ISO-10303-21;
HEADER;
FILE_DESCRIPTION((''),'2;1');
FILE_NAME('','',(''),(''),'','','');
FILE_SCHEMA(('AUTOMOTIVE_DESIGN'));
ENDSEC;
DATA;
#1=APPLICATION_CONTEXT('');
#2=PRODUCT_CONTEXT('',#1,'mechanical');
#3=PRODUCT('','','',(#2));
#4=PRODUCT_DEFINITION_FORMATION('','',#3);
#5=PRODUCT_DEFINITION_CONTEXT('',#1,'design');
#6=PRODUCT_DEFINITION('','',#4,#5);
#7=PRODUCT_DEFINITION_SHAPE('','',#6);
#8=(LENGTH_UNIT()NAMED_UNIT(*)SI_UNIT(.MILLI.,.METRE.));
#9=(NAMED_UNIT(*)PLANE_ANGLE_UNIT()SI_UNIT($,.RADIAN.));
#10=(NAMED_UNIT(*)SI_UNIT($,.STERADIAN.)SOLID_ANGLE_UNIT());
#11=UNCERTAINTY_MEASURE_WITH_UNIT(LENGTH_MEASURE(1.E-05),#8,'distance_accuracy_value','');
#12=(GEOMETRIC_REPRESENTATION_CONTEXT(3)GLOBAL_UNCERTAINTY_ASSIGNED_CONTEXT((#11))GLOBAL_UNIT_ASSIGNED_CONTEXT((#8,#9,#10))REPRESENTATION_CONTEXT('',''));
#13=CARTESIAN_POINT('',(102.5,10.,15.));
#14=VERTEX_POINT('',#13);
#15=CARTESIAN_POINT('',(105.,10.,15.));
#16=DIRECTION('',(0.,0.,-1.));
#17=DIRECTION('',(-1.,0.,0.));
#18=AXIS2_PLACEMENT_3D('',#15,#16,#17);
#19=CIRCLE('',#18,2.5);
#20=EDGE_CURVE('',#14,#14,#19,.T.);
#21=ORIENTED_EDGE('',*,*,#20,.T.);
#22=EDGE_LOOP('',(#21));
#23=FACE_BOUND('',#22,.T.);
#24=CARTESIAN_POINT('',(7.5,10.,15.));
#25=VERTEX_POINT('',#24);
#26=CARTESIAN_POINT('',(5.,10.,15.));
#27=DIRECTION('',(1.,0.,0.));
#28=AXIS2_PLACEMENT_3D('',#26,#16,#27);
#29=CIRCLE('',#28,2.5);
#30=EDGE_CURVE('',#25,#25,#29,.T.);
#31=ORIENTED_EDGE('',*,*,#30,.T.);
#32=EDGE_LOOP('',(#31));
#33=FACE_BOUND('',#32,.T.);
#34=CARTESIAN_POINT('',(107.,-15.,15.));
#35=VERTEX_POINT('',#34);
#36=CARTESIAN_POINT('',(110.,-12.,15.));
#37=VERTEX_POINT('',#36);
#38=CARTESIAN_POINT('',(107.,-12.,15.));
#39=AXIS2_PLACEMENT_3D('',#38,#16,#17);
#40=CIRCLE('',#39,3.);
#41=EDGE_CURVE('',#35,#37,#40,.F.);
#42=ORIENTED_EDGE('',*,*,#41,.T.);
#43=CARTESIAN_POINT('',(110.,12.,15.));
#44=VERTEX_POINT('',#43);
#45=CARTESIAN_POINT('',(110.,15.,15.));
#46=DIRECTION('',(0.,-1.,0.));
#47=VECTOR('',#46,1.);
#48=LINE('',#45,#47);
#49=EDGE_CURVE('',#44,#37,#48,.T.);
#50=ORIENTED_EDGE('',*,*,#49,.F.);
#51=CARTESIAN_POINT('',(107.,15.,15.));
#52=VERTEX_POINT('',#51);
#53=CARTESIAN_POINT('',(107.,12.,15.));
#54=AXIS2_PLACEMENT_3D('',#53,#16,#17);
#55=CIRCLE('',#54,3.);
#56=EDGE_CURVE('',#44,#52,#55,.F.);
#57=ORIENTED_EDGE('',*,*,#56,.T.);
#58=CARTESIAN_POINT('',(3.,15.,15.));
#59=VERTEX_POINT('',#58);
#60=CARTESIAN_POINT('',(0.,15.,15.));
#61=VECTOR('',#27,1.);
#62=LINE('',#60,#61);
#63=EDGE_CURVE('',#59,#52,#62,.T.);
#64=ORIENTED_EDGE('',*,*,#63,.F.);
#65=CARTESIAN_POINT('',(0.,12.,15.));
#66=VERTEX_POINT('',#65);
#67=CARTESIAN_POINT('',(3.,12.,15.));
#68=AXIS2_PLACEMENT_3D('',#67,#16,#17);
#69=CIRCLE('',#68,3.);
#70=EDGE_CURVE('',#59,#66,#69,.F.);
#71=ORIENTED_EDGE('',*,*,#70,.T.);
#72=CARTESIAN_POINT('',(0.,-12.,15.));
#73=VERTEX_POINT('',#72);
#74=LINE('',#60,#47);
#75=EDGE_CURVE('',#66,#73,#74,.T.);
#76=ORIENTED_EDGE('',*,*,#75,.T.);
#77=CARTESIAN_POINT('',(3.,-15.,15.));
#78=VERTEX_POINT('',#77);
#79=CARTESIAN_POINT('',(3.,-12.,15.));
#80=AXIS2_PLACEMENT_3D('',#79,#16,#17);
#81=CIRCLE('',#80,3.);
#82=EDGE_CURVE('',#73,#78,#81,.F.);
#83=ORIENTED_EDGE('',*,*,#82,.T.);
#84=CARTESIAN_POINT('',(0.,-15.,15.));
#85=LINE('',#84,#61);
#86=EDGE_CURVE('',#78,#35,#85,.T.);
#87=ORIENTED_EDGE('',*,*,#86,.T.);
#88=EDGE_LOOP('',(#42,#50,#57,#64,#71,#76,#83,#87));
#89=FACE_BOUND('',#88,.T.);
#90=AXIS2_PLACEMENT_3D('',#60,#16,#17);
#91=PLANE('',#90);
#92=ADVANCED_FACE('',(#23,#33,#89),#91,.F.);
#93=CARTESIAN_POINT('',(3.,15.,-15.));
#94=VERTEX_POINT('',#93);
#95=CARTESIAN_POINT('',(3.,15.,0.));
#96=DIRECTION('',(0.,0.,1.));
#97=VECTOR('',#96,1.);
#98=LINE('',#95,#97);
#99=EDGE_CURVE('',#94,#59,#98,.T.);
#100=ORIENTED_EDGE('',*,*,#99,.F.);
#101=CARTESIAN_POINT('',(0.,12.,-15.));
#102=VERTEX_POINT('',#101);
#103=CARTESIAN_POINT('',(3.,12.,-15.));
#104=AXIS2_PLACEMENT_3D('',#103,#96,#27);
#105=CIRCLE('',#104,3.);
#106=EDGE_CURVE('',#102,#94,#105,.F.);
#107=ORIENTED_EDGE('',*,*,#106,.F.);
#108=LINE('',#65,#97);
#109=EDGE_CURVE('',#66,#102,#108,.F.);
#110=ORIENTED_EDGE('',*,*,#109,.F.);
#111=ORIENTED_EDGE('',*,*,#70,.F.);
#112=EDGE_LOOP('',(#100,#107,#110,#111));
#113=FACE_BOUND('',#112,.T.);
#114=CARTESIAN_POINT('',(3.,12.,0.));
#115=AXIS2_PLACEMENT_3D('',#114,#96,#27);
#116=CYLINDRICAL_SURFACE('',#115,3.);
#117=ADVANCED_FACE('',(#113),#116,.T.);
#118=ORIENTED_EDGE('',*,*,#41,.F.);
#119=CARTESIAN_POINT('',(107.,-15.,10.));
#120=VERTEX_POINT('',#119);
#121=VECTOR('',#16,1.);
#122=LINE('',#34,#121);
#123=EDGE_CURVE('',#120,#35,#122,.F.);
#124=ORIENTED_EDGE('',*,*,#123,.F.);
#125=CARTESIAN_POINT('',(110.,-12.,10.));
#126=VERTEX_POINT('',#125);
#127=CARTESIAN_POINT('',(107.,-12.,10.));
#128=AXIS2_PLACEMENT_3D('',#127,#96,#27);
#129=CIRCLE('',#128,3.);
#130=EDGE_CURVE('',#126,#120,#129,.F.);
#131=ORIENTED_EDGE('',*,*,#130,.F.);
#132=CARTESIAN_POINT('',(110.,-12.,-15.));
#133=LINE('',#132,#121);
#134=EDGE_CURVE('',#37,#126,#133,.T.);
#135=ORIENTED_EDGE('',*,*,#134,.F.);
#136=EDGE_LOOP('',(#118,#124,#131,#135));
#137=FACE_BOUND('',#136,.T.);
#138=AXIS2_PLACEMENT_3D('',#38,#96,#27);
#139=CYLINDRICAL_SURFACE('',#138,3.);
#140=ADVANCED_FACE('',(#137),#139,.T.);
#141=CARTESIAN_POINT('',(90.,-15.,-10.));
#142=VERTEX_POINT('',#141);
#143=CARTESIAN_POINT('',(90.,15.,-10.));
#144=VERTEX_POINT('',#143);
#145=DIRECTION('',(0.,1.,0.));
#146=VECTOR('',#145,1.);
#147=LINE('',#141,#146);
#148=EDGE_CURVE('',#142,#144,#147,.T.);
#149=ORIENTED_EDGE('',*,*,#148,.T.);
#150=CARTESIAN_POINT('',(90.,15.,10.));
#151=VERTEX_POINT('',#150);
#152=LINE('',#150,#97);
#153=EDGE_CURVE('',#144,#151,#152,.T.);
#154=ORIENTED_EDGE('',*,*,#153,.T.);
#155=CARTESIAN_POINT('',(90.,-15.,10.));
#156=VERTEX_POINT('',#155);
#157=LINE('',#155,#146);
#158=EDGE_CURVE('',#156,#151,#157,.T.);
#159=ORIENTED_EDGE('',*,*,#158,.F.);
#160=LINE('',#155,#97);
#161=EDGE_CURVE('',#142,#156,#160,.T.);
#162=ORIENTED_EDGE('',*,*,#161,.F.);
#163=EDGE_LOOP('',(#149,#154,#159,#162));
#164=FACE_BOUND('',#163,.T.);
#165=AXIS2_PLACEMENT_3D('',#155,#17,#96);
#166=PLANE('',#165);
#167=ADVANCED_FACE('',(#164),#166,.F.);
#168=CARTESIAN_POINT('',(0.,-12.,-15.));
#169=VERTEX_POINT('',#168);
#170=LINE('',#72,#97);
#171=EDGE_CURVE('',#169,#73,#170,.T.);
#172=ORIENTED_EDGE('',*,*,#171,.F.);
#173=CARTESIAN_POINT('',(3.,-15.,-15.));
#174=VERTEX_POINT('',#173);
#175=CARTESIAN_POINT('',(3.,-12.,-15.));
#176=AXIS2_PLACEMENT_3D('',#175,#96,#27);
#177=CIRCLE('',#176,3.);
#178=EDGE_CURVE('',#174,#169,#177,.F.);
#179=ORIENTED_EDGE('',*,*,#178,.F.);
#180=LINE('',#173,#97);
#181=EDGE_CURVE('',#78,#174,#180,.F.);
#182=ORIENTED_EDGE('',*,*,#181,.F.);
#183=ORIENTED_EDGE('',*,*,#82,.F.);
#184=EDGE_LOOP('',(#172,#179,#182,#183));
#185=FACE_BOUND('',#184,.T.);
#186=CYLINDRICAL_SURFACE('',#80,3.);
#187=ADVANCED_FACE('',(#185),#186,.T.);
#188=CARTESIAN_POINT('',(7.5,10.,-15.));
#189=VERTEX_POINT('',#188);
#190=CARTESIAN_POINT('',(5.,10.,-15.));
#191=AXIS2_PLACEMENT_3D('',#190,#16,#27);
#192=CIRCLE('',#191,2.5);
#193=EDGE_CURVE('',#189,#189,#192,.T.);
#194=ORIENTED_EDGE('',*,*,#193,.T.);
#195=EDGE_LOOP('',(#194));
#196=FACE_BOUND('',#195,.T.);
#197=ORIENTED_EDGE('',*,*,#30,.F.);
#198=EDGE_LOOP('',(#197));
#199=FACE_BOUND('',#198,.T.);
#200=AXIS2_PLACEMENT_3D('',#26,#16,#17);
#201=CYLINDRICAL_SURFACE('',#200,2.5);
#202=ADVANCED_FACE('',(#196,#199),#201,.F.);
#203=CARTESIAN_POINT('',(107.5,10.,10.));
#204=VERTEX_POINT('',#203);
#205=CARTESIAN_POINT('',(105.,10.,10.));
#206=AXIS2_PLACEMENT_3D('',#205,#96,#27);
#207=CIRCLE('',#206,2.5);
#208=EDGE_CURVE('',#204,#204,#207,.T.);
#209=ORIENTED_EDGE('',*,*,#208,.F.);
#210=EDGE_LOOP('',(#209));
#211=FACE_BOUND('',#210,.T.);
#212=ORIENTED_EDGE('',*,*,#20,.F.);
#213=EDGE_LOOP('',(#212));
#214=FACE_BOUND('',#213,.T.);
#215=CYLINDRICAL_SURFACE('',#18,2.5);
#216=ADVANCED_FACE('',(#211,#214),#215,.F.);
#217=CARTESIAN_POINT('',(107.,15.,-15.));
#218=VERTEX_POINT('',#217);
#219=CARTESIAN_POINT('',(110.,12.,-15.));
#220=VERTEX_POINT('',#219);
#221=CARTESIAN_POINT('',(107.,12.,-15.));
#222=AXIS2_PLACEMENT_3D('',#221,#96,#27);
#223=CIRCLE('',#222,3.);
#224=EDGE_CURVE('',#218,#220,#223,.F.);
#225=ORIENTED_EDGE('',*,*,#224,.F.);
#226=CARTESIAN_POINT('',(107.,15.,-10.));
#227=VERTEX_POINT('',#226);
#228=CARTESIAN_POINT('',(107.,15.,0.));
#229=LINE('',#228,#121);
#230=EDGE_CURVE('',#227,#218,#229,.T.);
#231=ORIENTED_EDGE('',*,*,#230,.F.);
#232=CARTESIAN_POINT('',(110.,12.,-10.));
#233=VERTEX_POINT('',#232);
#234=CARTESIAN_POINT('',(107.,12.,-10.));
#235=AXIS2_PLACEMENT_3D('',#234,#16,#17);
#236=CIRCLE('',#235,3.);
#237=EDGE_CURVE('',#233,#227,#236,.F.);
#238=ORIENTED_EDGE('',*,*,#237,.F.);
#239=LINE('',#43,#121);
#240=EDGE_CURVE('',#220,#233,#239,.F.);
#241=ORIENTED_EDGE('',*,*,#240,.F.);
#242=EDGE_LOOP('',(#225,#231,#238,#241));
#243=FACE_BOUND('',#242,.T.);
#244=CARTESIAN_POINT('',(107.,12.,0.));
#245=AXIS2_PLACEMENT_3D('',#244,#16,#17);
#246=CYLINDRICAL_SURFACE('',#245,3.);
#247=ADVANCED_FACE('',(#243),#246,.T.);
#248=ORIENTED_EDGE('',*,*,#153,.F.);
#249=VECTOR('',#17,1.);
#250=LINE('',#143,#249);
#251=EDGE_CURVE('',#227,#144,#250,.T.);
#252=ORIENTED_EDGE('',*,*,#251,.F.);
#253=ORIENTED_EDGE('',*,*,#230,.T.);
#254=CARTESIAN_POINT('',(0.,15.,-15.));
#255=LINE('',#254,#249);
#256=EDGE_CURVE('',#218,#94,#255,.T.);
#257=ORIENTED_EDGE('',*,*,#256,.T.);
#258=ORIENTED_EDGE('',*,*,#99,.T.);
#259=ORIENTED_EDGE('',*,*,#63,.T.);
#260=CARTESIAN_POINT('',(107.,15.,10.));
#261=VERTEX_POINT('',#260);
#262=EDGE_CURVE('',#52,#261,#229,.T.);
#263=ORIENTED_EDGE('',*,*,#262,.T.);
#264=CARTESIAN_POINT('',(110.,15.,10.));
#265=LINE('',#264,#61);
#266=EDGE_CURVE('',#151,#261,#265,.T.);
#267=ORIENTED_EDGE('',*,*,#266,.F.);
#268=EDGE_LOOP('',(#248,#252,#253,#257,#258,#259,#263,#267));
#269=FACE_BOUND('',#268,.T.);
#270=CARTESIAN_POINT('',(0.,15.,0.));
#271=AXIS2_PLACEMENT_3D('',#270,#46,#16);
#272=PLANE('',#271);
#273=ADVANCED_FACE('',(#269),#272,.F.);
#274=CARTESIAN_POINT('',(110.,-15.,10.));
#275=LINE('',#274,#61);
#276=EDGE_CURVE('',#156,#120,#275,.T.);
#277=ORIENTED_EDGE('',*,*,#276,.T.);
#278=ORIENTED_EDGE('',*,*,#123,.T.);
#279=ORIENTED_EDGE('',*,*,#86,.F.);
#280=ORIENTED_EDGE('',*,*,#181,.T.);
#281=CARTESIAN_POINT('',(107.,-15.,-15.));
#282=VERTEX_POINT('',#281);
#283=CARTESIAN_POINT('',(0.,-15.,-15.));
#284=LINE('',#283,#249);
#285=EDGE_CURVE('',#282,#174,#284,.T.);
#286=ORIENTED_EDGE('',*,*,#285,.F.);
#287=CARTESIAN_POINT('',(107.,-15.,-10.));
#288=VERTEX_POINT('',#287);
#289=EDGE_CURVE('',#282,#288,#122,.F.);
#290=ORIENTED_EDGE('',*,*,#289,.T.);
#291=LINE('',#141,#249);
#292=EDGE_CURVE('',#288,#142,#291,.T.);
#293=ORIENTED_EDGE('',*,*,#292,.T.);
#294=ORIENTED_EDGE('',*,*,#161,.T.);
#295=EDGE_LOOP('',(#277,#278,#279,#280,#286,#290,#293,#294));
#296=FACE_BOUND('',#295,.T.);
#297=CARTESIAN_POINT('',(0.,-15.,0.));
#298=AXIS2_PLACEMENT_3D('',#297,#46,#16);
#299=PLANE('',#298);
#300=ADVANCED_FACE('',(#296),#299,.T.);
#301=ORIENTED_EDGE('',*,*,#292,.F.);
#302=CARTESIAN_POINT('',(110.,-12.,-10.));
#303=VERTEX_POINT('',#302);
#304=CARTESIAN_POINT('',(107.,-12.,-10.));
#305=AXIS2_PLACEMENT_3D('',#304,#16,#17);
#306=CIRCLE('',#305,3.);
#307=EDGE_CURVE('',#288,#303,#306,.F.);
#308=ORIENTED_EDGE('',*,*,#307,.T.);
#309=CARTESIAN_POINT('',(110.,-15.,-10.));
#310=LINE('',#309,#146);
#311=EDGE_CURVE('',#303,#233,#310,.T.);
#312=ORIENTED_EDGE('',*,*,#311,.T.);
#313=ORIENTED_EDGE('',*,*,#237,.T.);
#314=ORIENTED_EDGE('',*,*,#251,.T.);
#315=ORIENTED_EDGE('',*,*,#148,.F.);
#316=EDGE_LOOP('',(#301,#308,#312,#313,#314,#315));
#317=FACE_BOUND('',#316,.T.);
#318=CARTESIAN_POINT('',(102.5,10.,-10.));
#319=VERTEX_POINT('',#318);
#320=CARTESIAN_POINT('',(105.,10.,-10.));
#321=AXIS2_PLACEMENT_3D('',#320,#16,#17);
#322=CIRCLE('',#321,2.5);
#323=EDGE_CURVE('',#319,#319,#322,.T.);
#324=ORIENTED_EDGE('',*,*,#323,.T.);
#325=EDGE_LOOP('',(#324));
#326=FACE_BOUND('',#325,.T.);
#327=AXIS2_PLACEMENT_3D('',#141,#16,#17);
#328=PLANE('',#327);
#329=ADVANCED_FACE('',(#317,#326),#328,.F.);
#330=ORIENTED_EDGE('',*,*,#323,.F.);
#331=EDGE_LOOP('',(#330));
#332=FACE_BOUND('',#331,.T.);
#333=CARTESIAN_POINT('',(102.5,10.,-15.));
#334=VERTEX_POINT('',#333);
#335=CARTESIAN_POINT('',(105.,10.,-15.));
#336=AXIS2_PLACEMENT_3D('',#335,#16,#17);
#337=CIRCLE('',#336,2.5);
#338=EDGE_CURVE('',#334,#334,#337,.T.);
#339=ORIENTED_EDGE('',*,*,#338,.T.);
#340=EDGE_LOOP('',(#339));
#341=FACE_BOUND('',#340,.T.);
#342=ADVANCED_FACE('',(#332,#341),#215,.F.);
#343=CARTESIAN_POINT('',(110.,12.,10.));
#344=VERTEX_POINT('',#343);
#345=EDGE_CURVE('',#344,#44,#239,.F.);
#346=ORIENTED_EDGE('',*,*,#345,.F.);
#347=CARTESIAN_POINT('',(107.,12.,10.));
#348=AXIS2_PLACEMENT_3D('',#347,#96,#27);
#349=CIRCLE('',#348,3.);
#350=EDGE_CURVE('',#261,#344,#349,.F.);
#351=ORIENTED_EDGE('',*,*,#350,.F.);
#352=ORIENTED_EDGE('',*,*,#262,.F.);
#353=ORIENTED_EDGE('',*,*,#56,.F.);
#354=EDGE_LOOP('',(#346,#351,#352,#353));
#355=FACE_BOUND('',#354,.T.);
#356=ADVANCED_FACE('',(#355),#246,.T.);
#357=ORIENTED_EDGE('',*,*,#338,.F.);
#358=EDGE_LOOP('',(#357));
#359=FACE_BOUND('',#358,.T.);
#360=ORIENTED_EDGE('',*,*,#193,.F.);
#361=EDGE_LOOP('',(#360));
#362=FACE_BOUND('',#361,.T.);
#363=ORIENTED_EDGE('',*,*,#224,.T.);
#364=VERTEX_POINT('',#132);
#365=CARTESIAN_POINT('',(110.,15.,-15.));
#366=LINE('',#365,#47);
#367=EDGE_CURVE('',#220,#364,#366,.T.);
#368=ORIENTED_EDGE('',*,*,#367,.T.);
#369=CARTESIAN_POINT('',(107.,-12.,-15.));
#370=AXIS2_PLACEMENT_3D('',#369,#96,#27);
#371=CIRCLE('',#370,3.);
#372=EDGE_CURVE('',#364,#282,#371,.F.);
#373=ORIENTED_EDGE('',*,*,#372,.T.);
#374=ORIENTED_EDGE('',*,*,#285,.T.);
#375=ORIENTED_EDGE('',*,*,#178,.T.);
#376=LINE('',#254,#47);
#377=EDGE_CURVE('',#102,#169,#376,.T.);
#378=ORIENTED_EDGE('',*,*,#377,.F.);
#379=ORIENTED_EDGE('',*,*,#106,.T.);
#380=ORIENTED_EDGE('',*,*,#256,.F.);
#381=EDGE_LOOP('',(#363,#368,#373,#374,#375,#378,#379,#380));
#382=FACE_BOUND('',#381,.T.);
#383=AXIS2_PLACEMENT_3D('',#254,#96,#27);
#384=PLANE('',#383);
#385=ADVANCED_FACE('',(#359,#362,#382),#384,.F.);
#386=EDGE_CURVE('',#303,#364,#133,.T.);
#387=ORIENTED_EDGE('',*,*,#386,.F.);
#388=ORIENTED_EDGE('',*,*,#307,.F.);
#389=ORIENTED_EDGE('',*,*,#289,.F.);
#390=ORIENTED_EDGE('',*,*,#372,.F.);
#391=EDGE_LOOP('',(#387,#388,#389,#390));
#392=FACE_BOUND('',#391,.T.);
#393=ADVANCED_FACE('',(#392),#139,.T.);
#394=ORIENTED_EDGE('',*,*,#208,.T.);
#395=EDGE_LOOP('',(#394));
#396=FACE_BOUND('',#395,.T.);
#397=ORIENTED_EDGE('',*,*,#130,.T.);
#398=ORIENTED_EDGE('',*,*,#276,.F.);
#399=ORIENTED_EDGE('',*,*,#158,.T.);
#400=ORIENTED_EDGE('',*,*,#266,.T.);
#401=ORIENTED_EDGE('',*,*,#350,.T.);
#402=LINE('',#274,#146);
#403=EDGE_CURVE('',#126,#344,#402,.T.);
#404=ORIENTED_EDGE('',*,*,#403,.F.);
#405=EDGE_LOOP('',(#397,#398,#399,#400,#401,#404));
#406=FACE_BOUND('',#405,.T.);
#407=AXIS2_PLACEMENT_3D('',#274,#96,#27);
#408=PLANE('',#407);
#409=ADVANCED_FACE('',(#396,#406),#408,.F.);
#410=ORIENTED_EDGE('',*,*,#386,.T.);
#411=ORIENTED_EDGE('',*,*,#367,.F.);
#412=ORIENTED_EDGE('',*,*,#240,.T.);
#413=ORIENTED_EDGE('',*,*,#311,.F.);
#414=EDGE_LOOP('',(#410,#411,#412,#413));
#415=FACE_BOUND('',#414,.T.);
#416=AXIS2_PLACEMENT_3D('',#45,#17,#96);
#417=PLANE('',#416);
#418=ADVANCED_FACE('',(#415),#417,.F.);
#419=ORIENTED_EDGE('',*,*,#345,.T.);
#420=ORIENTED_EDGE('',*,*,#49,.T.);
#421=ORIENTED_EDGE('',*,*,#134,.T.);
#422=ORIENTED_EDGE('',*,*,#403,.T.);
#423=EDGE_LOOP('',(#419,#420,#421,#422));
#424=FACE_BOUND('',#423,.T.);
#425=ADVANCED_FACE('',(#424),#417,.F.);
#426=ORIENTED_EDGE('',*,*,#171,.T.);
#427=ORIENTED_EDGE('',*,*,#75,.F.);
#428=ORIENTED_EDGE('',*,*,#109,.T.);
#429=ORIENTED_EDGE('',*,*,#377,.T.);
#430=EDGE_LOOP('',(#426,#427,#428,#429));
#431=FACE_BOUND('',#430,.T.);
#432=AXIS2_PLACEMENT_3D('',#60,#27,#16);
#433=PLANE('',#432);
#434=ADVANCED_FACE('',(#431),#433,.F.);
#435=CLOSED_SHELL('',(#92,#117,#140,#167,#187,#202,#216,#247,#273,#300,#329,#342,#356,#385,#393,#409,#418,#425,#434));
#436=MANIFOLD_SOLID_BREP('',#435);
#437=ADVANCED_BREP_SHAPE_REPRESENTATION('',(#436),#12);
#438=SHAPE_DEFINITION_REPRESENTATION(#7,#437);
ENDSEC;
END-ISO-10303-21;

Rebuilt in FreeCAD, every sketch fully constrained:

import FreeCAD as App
import Part
import Sketcher


def edges_at(feature, points):
    """Names of the edges that pass closest to the given points."""
    edges = feature.Shape.Edges
    near = lambda p: min(range(len(edges)), key=lambda i: edges[i].distToShape(Part.Vertex(*p))[0])
    return sorted({f"Edge{near(p) + 1}" for p in points})


def add_polygon(sketch, points):
    """Adds a closed chain of lines whose ends are joined by coincident constraints."""
    first, n = sketch.GeometryCount, len(points)
    for a, b in zip(points, points[1:] + points[:1]):
        sketch.addGeometry(Part.LineSegment(App.Vector(*a, 0), App.Vector(*b, 0)), False)
    for i in range(n):
        sketch.addConstraint(Sketcher.Constraint("Coincident", first + i, 2, first + (i + 1) % n, 1))

doc = App.newDocument("Part")
body = doc.addObject("PartDesign::Body", "Body")

# Sketch on XZ plane
sketch1 = doc.addObject("Sketcher::SketchObject", "Sketch")
body.addObject(sketch1)
sketch1.AttachmentSupport = (doc.XZ_Plane, [""])
sketch1.MapMode = "FlatFace"
add_polygon(sketch1, [(0, -15), (0, 15), (110, 15), (110, -15)])  # lines 0-3
sketch1.addConstraint(Sketcher.Constraint("Vertical", 0))
sketch1.addConstraint(Sketcher.Constraint("Horizontal", 1))
sketch1.addConstraint(Sketcher.Constraint("Vertical", 2))
sketch1.addConstraint(Sketcher.Constraint("Horizontal", 3))
sketch1.addConstraint(Sketcher.Constraint("Symmetric", 0, 2, 3, 2, -1, 1))
sketch1.addConstraint(Sketcher.Constraint("DistanceX", 1, 1, 1, 2, 110.0))
sketch1.addConstraint(Sketcher.Constraint("DistanceY", 0, 1, 0, 2, 30.0))
pad1 = doc.addObject("PartDesign::Pad", "Pad")
body.addObject(pad1)
pad1.Profile = sketch1
pad1.Length = 30
pad1.Midplane = True
doc.recompute()

fillet = doc.addObject("PartDesign::Fillet", "Fillet")
body.addObject(fillet)
fillet.Base = (pad1, edges_at(pad1, [
    (110, 15, 0),
    (0, 15, 0),
    (110, -15, 0),
    (0, -15, 0),
]))
fillet.Radius = 3

# Sketch on XZ plane
sketch2 = doc.addObject("Sketcher::SketchObject", "Sketch001")
body.addObject(sketch2)
sketch2.AttachmentSupport = (doc.XZ_Plane, [""])
sketch2.MapMode = "FlatFace"
sketch2.AttachmentOffset = App.Placement(App.Vector(0, 0, -15), App.Rotation())
add_polygon(sketch2, [(90, -10), (90, 10), (110, 10), (110, -10)])  # lines 0-3
sketch2.addConstraint(Sketcher.Constraint("Vertical", 0))
sketch2.addConstraint(Sketcher.Constraint("Horizontal", 1))
sketch2.addConstraint(Sketcher.Constraint("Vertical", 2))
sketch2.addConstraint(Sketcher.Constraint("Horizontal", 3))
sketch2.addConstraint(Sketcher.Constraint("Equal", 3, 0))
sketch2.addConstraint(Sketcher.Constraint("DistanceX", 1, 1, 1, 2, 20.0))
sketch2.addConstraint(Sketcher.Constraint("DistanceX", -1, 1, 0, 2, 90.0))
sketch2.addConstraint(Sketcher.Constraint("DistanceY", -1, 1, 0, 2, 10.0))
pocket1 = doc.addObject("PartDesign::Pocket", "Pocket")
body.addObject(pocket1)
pocket1.Profile = sketch2
pocket1.Type = "ThroughAll"
pocket1.Reversed = True

# Sketch on XY plane
sketch3 = doc.addObject("Sketcher::SketchObject", "Sketch002")
body.addObject(sketch3)
sketch3.AttachmentSupport = (doc.XY_Plane, [""])
sketch3.MapMode = "FlatFace"
sketch3.AttachmentOffset = App.Placement(App.Vector(0, 0, -15), App.Rotation())
sketch3.addGeometry(Part.Circle(App.Vector(105, 10, 0), App.Vector(0, 0, 1), 2.5), False)
sketch3.addGeometry(Part.Circle(App.Vector(5, 10, 0), App.Vector(0, 0, 1), 2.5), False)
sketch3.addConstraint(Sketcher.Constraint("Equal", 0, 1))
sketch3.addConstraint(Sketcher.Constraint("Horizontal", 0, 3, 1, 3))
sketch3.addConstraint(Sketcher.Constraint("Diameter", 0, 5.0))
sketch3.addConstraint(Sketcher.Constraint("DistanceX", -1, 1, 0, 3, 105.0))
sketch3.addConstraint(Sketcher.Constraint("DistanceY", -1, 1, 0, 3, 10.0))
sketch3.addConstraint(Sketcher.Constraint("DistanceX", -1, 1, 1, 3, 5.0))
pocket2 = doc.addObject("PartDesign::Pocket", "Pocket001")
body.addObject(pocket2)
pocket2.Profile = sketch3
pocket2.Type = "ThroughAll"
pocket2.Reversed = True

doc.recompute()
